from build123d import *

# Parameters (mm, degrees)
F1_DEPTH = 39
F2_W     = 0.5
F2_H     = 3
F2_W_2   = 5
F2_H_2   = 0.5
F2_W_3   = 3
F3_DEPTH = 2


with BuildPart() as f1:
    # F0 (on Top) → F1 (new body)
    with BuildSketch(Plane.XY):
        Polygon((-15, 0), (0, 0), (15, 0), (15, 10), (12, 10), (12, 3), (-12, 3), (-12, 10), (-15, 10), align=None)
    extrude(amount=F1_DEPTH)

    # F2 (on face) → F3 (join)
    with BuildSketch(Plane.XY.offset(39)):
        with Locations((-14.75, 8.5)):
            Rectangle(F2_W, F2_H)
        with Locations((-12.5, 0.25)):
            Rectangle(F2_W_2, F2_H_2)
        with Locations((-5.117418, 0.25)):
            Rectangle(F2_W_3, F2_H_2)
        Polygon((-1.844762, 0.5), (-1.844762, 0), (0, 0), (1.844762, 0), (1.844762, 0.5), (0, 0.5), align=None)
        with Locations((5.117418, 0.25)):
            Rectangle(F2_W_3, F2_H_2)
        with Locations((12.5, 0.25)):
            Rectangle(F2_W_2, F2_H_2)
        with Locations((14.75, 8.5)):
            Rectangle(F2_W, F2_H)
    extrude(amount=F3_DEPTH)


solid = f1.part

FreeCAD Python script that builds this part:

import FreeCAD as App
import Part
import Sketcher
from FreeCAD import Vector
Q = App.Units.Quantity

doc = App.newDocument("Part")
body = doc.addObject("PartDesign::Body", "Body")

# Sketch on XY plane
sketch1 = doc.addObject("Sketcher::SketchObject", "Sketch")
body.addObject(sketch1)
sketch1.AttachmentSupport = (doc.XY_Plane, [""])
sketch1.MapMode = "FlatFace"
sketch1.addGeometry([
    Part.LineSegment(Vector(-15, 0, 0), Vector(15, 0, 0)),  # 0
    Part.LineSegment(Vector(15, 0, 0), Vector(15, 10, 0)),  # 1
    Part.LineSegment(Vector(15, 10, 0), Vector(12, 10, 0)),  # 2
    Part.LineSegment(Vector(12, 10, 0), Vector(12, 3, 0)),  # 3
    Part.LineSegment(Vector(12, 3, 0), Vector(-12, 3, 0)),  # 4
    Part.LineSegment(Vector(-12, 3, 0), Vector(-12, 10, 0)),  # 5
    Part.LineSegment(Vector(-12, 10, 0), Vector(-15, 10, 0)),  # 6
    Part.LineSegment(Vector(-15, 10, 0), Vector(-15, 0, 0)),  # 7
], False)
sketch1.addConstraint([
    Sketcher.Constraint("Coincident", 0, 2, 1, 1),
    Sketcher.Constraint("Coincident", 1, 2, 2, 1),
    Sketcher.Constraint("Coincident", 2, 2, 3, 1),
    Sketcher.Constraint("Coincident", 3, 2, 4, 1),
    Sketcher.Constraint("Coincident", 4, 2, 5, 1),
    Sketcher.Constraint("Coincident", 5, 2, 6, 1),
    Sketcher.Constraint("Coincident", 6, 2, 7, 1),
    Sketcher.Constraint("Coincident", 7, 2, 0, 1),
    Sketcher.Constraint("Horizontal", 0),
    Sketcher.Constraint("Vertical", 1),
    Sketcher.Constraint("Horizontal", 2),
    Sketcher.Constraint("Vertical", 3),
    Sketcher.Constraint("Horizontal", 4),
    Sketcher.Constraint("Vertical", 5),
    Sketcher.Constraint("Horizontal", 6),
    Sketcher.Constraint("Vertical", 7),
    Sketcher.Constraint("Symmetric", 0, 2, 7, 2, -1, 1),
    Sketcher.Constraint("Symmetric", 2, 2, 5, 2, -2),
    Sketcher.Constraint("DistanceX", 0, 1, 0, 2, Q("30 mm")),
    Sketcher.Constraint("DistanceX", 2, 2, 2, 1, Q("3 mm")),
    Sketcher.Constraint("DistanceY", 1, 1, 1, 2, Q("10 mm")),
    Sketcher.Constraint("DistanceY", 3, 2, 3, 1, Q("7 mm")),
])
pad1 = doc.addObject("PartDesign::Pad", "Pad")
body.addObject(pad1)
pad1.Profile = sketch1
pad1.Length = 39

# Sketch on XY plane
sketch2 = doc.addObject("Sketcher::SketchObject", "Sketch001")
body.addObject(sketch2)
sketch2.AttachmentSupport = (doc.XY_Plane, [""])
sketch2.MapMode = "FlatFace"
sketch2.AttachmentOffset = App.Placement(Vector(0, 0, 39), App.Rotation())
sketch2.addGeometry([
    Part.LineSegment(Vector(-15, 10, 0), Vector(-15, 7, 0)),  # 0
    Part.LineSegment(Vector(-15, 7, 0), Vector(-14.5, 7, 0)),  # 1
    Part.LineSegment(Vector(-14.5, 7, 0), Vector(-14.5, 10, 0)),  # 2
    Part.LineSegment(Vector(-14.5, 10, 0), Vector(-15, 10, 0)),  # 3
    Part.LineSegment(Vector(-15, 0.5, 0), Vector(-15, 0, 0)),  # 4
    Part.LineSegment(Vector(-15, 0, 0), Vector(-10, 0, 0)),  # 5
    Part.LineSegment(Vector(-10, 0, 0), Vector(-10, 0.5, 0)),  # 6
    Part.LineSegment(Vector(-10, 0.5, 0), Vector(-15, 0.5, 0)),  # 7
    Part.LineSegment(Vector(-6.6, 0.5, 0), Vector(-6.6, 0, 0)),  # 8
    Part.LineSegment(Vector(-6.6, 0, 0), Vector(-3.6, 0, 0)),  # 9
    Part.LineSegment(Vector(-3.6, 0, 0), Vector(-3.6, 0.5, 0)),  # 10
    Part.LineSegment(Vector(-3.6, 0.5, 0), Vector(-6.6, 0.5, 0)),  # 11
    Part.LineSegment(Vector(-1.8, 0.5, 0), Vector(-1.8, 0, 0)),  # 12
    Part.LineSegment(Vector(-1.8, 0, 0), Vector(1.8, 0, 0)),  # 13
    Part.LineSegment(Vector(1.8, 0, 0), Vector(1.8, 0.5, 0)),  # 14
    Part.LineSegment(Vector(1.8, 0.5, 0), Vector(-1.8, 0.5, 0)),  # 15
    Part.LineSegment(Vector(3.6, 0.5, 0), Vector(3.6, 0, 0)),  # 16
    Part.LineSegment(Vector(3.6, 0, 0), Vector(6.6, 0, 0)),  # 17
    Part.LineSegment(Vector(6.6, 0, 0), Vector(6.6, 0.5, 0)),  # 18
    Part.LineSegment(Vector(6.6, 0.5, 0), Vector(3.6, 0.5, 0)),  # 19
    Part.LineSegment(Vector(10, 0.5, 0), Vector(10, 0, 0)),  # 20
    Part.LineSegment(Vector(10, 0, 0), Vector(15, 0, 0)),  # 21
    Part.LineSegment(Vector(15, 0, 0), Vector(15, 0.5, 0)),  # 22
    Part.LineSegment(Vector(15, 0.5, 0), Vector(10, 0.5, 0)),  # 23
    Part.LineSegment(Vector(14.5, 10, 0), Vector(14.5, 7, 0)),  # 24
    Part.LineSegment(Vector(14.5, 7, 0), Vector(15, 7, 0)),  # 25
    Part.LineSegment(Vector(15, 7, 0), Vector(15, 10, 0)),  # 26
    Part.LineSegment(Vector(15, 10, 0), Vector(14.5, 10, 0)),  # 27
], False)
sketch2.addConstraint([
    Sketcher.Constraint("Coincident", 0, 2, 1, 1),
    Sketcher.Constraint("Coincident", 1, 2, 2, 1),
    Sketcher.Constraint("Coincident", 2, 2, 3, 1),
    Sketcher.Constraint("Coincident", 3, 2, 0, 1),
    Sketcher.Constraint("Coincident", 4, 2, 5, 1),
    Sketcher.Constraint("Coincident", 5, 2, 6, 1),
    Sketcher.Constraint("Coincident", 6, 2, 7, 1),
    Sketcher.Constraint("Coincident", 7, 2, 4, 1),
    Sketcher.Constraint("Coincident", 8, 2, 9, 1),
    Sketcher.Constraint("Coincident", 9, 2, 10, 1),
    Sketcher.Constraint("Coincident", 10, 2, 11, 1),
    Sketcher.Constraint("Coincident", 11, 2, 8, 1),
    Sketcher.Constraint("Coincident", 12, 2, 13, 1),
    Sketcher.Constraint("Coincident", 13, 2, 14, 1),
    Sketcher.Constraint("Coincident", 14, 2, 15, 1),
    Sketcher.Constraint("Coincident", 15, 2, 12, 1),
    Sketcher.Constraint("Coincident", 16, 2, 17, 1),
    Sketcher.Constraint("Coincident", 17, 2, 18, 1),
    Sketcher.Constraint("Coincident", 18, 2, 19, 1),
    Sketcher.Constraint("Coincident", 19, 2, 16, 1),
    Sketcher.Constraint("Coincident", 20, 2, 21, 1),
    Sketcher.Constraint("Coincident", 21, 2, 22, 1),
    Sketcher.Constraint("Coincident", 22, 2, 23, 1),
    Sketcher.Constraint("Coincident", 23, 2, 20, 1),
    Sketcher.Constraint("Coincident", 24, 2, 25, 1),
    Sketcher.Constraint("Coincident", 25, 2, 26, 1),
    Sketcher.Constraint("Coincident", 26, 2, 27, 1),
    Sketcher.Constraint("Coincident", 27, 2, 24, 1),
    Sketcher.Constraint("Vertical", 0),
    Sketcher.Constraint("Horizontal", 1),
    Sketcher.Constraint("Vertical", 2),
    Sketcher.Constraint("Horizontal", 3),
    Sketcher.Constraint("Vertical", 4),
    Sketcher.Constraint("Horizontal", 5),
    Sketcher.Constraint("Vertical", 6),
    Sketcher.Constraint("Horizontal", 7),
    Sketcher.Constraint("Vertical", 8),
    Sketcher.Constraint("Horizontal", 9),
    Sketcher.Constraint("Vertical", 10),
    Sketcher.Constraint("Horizontal", 11),
    Sketcher.Constraint("Vertical", 12),
    Sketcher.Constraint("Horizontal", 13),
    Sketcher.Constraint("Vertical", 14),
    Sketcher.Constraint("Horizontal", 15),
    Sketcher.Constraint("Vertical", 16),
    Sketcher.Constraint("Horizontal", 17),
    Sketcher.Constraint("Vertical", 18),
    Sketcher.Constraint("Horizontal", 19),
    Sketcher.Constraint("Vertical", 20),
    Sketcher.Constraint("Horizontal", 21),
    Sketcher.Constraint("Vertical", 22),
    Sketcher.Constraint("Horizontal", 23),
    Sketcher.Constraint("Vertical", 24),
    Sketcher.Constraint("Horizontal", 25),
    Sketcher.Constraint("Vertical", 26),
    Sketcher.Constraint("Horizontal", 27),
    Sketcher.Constraint("Symmetric", 12, 2, 13, 2, -1, 1),
    Sketcher.Constraint("Symmetric", 9, 2, 16, 2, -1, 1),
    Sketcher.Constraint("Symmetric", 5, 2, 20, 2, -1, 1),
    Sketcher.Constraint("Symmetric", 8, 2, 17, 2, -2),
    Sketcher.Constraint("Symmetric", 4, 2, 21, 2, -2),
    Sketcher.Constraint("Symmetric", 1, 2, 24, 2, -2),
    Sketcher.Constraint("Symmetric", 3, 2, 26, 2, -2),
    Sketcher.Constraint("Horizontal", 7, 2, 10, 2),
    Sketcher.Constraint("Horizontal", 11, 2, 14, 2),
    Sketcher.Constraint("Horizontal", 15, 2, 18, 2),
    Sketcher.Constraint("Horizontal", 19, 2, 22, 2),
    Sketcher.Constraint("Vertical", 3, 2, 4, 2),
    Sketcher.Constraint("Equal", 19, 0),
    Sketcher.Constraint("Equal", 27, 4),
    Sketcher.Constraint("DistanceX", 5, 1, 5, 2, Q("5 mm")),
    Sketcher.Constraint("DistanceX", 9, 1, 9, 2, Q("3 mm")),
    Sketcher.Constraint("DistanceX", 1, 1, 1, 2, Q("0.5 mm")),
    Sketcher.Constraint("DistanceX", 0, 2, -1, 1, Q("15 mm")),
    Sketcher.Constraint("DistanceY", -1, 1, 0, 2, Q("7 mm")),
    Sketcher.Constraint("DistanceX", 13, 1, 13, 2, Q("3.689524 mm")),
    Sketcher.Constraint("DistanceX", 4, 2, 8, 2, Q("8.382582 mm")),
])
pad2 = doc.addObject("PartDesign::Pad", "Pad001")
body.addObject(pad2)
pad2.Profile = sketch2
pad2.Length = 2

doc.recompute()
